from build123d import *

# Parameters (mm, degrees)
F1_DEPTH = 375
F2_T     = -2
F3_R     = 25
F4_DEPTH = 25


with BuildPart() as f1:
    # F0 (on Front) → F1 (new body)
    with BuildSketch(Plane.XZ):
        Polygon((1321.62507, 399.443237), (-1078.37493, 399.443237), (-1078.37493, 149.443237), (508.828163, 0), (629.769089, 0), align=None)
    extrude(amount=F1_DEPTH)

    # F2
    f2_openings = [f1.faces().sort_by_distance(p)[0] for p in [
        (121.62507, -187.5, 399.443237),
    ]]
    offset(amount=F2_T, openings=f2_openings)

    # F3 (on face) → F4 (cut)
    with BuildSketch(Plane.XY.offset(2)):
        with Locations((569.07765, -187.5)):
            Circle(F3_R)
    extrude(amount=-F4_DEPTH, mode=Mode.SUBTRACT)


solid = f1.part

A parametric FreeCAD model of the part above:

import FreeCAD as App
import Part
import Sketcher
Q = App.Units.Quantity


def faces_at(feature, points):
    """Names of the faces that lie closest to the given points."""
    faces = feature.Shape.Faces
    near = lambda p: min(range(len(faces)), key=lambda i: faces[i].distToShape(Part.Vertex(*p))[0])
    return sorted({f"Face{near(p) + 1}" for p in points})

doc = App.newDocument("Part")
params = doc.addObject("Spreadsheet::Sheet", "Params")
for row, (alias, value) in enumerate([
    ("sketch1_width", "2400 mm"),
    ("sketch1_height", "250 mm"),
    ("pad1_length", "375 mm"),
    ("thickness_wall", "2 mm"),
    ("sketch2_diameter", "50 mm"),
    ("pocket1_length", "25 mm"),
], start=1):
    params.set(f"A{row}", alias)
    params.set(f"B{row}", "=" + value)
    params.setAlias(f"B{row}", alias)

body = doc.addObject("PartDesign::Body", "Body")

# Sketch on XZ plane
sketch1 = body.newObject("Sketcher::SketchObject", "Sketch")
sketch1.AttachmentSupport = (doc.getObject("XZ_Plane"), [""])
sketch1.MapMode = "FlatFace"
sketch1.addGeometry(Part.LineSegment(App.Vector(1322, 399, 0), App.Vector(-1078, 399, 0)), False)
sketch1.addGeometry(Part.LineSegment(App.Vector(-1078, 399, 0), App.Vector(-1078, 149, 0)), False)
sketch1.addGeometry(Part.LineSegment(App.Vector(-1078, 149, 0), App.Vector(509, 0, 0)), False)
sketch1.addGeometry(Part.LineSegment(App.Vector(509, 0, 0), App.Vector(630, 0, 0)), False)
sketch1.addGeometry(Part.LineSegment(App.Vector(630, 0, 0), App.Vector(1322, 399, 0)), False)
sketch1.addConstraint(Sketcher.Constraint("Coincident", 0, 2, 1, 1))
sketch1.addConstraint(Sketcher.Constraint("Coincident", 1, 2, 2, 1))
sketch1.addConstraint(Sketcher.Constraint("Coincident", 2, 2, 3, 1))
sketch1.addConstraint(Sketcher.Constraint("Coincident", 3, 2, 4, 1))
sketch1.addConstraint(Sketcher.Constraint("Coincident", 4, 2, 0, 1))
sketch1.addConstraint(Sketcher.Constraint("Horizontal", 0))
sketch1.addConstraint(Sketcher.Constraint("Vertical", 1))
sketch1.addConstraint(Sketcher.Constraint("Horizontal", 3))
sketch1.addConstraint(Sketcher.Constraint("PointOnObject", 2, 2, -1))
sketch1.addConstraint(Sketcher.Constraint("DistanceX", 0, 2, 0, 1, Q("2400 mm")))
sketch1.addConstraint(Sketcher.Constraint("DistanceY", 1, 2, 1, 1, Q("250 mm")))
sketch1.addConstraint(Sketcher.Constraint("Angle", 4, Q("30 deg")))
sketch1.addConstraint(Sketcher.Constraint("Distance", 2, Q("1594.222989 mm")))
sketch1.addConstraint(Sketcher.Constraint("DistanceX", 3, 1, 3, 2, Q("120.940926 mm")))
sketch1.addConstraint(Sketcher.Constraint("DistanceX", 0, 2, -1, 1, Q("1078.37493 mm")))
sketch1.setExpression("Constraints[9]", "Params.sketch1_width")
sketch1.setExpression("Constraints[10]", "Params.sketch1_height")
pad1 = body.newObject("PartDesign::Pad", "Pad")
pad1.Profile = sketch1
pad1.setExpression("Length", "Params.pad1_length")
doc.recompute()

thickness = body.newObject("PartDesign::Thickness", "Thickness")
thickness.Base = (pad1, faces_at(pad1, [(121.625, -187.5, 399.443)]))
thickness.setExpression("Value", "Params.thickness_wall")
thickness.Reversed = True
thickness.Join = "Arc"

# Sketch on XY plane
sketch2 = body.newObject("Sketcher::SketchObject", "Sketch001")
sketch2.AttachmentSupport = (doc.getObject("XY_Plane"), [""])
sketch2.MapMode = "FlatFace"
sketch2.AttachmentOffset = App.Placement(App.Vector(0, 0, 2), App.Rotation())
sketch2.addGeometry(Part.Circle(App.Vector(569, -188, 0), App.Vector(0, 0, 1), 25), False)
sketch2.addConstraint(Sketcher.Constraint("Diameter", 0, Q("50 mm")))
sketch2.addConstraint(Sketcher.Constraint("DistanceY", 0, 3, -1, 1, Q("187.5 mm")))
sketch2.addConstraint(Sketcher.Constraint("DistanceX", -1, 1, 0, 3, Q("569.07765 mm")))
sketch2.setExpression("Constraints[0]", "Params.sketch2_diameter")
pocket1 = body.newObject("PartDesign::Pocket", "Pocket")
pocket1.Profile = sketch2
pocket1.setExpression("Length", "Params.pocket1_length")

doc.recompute()
